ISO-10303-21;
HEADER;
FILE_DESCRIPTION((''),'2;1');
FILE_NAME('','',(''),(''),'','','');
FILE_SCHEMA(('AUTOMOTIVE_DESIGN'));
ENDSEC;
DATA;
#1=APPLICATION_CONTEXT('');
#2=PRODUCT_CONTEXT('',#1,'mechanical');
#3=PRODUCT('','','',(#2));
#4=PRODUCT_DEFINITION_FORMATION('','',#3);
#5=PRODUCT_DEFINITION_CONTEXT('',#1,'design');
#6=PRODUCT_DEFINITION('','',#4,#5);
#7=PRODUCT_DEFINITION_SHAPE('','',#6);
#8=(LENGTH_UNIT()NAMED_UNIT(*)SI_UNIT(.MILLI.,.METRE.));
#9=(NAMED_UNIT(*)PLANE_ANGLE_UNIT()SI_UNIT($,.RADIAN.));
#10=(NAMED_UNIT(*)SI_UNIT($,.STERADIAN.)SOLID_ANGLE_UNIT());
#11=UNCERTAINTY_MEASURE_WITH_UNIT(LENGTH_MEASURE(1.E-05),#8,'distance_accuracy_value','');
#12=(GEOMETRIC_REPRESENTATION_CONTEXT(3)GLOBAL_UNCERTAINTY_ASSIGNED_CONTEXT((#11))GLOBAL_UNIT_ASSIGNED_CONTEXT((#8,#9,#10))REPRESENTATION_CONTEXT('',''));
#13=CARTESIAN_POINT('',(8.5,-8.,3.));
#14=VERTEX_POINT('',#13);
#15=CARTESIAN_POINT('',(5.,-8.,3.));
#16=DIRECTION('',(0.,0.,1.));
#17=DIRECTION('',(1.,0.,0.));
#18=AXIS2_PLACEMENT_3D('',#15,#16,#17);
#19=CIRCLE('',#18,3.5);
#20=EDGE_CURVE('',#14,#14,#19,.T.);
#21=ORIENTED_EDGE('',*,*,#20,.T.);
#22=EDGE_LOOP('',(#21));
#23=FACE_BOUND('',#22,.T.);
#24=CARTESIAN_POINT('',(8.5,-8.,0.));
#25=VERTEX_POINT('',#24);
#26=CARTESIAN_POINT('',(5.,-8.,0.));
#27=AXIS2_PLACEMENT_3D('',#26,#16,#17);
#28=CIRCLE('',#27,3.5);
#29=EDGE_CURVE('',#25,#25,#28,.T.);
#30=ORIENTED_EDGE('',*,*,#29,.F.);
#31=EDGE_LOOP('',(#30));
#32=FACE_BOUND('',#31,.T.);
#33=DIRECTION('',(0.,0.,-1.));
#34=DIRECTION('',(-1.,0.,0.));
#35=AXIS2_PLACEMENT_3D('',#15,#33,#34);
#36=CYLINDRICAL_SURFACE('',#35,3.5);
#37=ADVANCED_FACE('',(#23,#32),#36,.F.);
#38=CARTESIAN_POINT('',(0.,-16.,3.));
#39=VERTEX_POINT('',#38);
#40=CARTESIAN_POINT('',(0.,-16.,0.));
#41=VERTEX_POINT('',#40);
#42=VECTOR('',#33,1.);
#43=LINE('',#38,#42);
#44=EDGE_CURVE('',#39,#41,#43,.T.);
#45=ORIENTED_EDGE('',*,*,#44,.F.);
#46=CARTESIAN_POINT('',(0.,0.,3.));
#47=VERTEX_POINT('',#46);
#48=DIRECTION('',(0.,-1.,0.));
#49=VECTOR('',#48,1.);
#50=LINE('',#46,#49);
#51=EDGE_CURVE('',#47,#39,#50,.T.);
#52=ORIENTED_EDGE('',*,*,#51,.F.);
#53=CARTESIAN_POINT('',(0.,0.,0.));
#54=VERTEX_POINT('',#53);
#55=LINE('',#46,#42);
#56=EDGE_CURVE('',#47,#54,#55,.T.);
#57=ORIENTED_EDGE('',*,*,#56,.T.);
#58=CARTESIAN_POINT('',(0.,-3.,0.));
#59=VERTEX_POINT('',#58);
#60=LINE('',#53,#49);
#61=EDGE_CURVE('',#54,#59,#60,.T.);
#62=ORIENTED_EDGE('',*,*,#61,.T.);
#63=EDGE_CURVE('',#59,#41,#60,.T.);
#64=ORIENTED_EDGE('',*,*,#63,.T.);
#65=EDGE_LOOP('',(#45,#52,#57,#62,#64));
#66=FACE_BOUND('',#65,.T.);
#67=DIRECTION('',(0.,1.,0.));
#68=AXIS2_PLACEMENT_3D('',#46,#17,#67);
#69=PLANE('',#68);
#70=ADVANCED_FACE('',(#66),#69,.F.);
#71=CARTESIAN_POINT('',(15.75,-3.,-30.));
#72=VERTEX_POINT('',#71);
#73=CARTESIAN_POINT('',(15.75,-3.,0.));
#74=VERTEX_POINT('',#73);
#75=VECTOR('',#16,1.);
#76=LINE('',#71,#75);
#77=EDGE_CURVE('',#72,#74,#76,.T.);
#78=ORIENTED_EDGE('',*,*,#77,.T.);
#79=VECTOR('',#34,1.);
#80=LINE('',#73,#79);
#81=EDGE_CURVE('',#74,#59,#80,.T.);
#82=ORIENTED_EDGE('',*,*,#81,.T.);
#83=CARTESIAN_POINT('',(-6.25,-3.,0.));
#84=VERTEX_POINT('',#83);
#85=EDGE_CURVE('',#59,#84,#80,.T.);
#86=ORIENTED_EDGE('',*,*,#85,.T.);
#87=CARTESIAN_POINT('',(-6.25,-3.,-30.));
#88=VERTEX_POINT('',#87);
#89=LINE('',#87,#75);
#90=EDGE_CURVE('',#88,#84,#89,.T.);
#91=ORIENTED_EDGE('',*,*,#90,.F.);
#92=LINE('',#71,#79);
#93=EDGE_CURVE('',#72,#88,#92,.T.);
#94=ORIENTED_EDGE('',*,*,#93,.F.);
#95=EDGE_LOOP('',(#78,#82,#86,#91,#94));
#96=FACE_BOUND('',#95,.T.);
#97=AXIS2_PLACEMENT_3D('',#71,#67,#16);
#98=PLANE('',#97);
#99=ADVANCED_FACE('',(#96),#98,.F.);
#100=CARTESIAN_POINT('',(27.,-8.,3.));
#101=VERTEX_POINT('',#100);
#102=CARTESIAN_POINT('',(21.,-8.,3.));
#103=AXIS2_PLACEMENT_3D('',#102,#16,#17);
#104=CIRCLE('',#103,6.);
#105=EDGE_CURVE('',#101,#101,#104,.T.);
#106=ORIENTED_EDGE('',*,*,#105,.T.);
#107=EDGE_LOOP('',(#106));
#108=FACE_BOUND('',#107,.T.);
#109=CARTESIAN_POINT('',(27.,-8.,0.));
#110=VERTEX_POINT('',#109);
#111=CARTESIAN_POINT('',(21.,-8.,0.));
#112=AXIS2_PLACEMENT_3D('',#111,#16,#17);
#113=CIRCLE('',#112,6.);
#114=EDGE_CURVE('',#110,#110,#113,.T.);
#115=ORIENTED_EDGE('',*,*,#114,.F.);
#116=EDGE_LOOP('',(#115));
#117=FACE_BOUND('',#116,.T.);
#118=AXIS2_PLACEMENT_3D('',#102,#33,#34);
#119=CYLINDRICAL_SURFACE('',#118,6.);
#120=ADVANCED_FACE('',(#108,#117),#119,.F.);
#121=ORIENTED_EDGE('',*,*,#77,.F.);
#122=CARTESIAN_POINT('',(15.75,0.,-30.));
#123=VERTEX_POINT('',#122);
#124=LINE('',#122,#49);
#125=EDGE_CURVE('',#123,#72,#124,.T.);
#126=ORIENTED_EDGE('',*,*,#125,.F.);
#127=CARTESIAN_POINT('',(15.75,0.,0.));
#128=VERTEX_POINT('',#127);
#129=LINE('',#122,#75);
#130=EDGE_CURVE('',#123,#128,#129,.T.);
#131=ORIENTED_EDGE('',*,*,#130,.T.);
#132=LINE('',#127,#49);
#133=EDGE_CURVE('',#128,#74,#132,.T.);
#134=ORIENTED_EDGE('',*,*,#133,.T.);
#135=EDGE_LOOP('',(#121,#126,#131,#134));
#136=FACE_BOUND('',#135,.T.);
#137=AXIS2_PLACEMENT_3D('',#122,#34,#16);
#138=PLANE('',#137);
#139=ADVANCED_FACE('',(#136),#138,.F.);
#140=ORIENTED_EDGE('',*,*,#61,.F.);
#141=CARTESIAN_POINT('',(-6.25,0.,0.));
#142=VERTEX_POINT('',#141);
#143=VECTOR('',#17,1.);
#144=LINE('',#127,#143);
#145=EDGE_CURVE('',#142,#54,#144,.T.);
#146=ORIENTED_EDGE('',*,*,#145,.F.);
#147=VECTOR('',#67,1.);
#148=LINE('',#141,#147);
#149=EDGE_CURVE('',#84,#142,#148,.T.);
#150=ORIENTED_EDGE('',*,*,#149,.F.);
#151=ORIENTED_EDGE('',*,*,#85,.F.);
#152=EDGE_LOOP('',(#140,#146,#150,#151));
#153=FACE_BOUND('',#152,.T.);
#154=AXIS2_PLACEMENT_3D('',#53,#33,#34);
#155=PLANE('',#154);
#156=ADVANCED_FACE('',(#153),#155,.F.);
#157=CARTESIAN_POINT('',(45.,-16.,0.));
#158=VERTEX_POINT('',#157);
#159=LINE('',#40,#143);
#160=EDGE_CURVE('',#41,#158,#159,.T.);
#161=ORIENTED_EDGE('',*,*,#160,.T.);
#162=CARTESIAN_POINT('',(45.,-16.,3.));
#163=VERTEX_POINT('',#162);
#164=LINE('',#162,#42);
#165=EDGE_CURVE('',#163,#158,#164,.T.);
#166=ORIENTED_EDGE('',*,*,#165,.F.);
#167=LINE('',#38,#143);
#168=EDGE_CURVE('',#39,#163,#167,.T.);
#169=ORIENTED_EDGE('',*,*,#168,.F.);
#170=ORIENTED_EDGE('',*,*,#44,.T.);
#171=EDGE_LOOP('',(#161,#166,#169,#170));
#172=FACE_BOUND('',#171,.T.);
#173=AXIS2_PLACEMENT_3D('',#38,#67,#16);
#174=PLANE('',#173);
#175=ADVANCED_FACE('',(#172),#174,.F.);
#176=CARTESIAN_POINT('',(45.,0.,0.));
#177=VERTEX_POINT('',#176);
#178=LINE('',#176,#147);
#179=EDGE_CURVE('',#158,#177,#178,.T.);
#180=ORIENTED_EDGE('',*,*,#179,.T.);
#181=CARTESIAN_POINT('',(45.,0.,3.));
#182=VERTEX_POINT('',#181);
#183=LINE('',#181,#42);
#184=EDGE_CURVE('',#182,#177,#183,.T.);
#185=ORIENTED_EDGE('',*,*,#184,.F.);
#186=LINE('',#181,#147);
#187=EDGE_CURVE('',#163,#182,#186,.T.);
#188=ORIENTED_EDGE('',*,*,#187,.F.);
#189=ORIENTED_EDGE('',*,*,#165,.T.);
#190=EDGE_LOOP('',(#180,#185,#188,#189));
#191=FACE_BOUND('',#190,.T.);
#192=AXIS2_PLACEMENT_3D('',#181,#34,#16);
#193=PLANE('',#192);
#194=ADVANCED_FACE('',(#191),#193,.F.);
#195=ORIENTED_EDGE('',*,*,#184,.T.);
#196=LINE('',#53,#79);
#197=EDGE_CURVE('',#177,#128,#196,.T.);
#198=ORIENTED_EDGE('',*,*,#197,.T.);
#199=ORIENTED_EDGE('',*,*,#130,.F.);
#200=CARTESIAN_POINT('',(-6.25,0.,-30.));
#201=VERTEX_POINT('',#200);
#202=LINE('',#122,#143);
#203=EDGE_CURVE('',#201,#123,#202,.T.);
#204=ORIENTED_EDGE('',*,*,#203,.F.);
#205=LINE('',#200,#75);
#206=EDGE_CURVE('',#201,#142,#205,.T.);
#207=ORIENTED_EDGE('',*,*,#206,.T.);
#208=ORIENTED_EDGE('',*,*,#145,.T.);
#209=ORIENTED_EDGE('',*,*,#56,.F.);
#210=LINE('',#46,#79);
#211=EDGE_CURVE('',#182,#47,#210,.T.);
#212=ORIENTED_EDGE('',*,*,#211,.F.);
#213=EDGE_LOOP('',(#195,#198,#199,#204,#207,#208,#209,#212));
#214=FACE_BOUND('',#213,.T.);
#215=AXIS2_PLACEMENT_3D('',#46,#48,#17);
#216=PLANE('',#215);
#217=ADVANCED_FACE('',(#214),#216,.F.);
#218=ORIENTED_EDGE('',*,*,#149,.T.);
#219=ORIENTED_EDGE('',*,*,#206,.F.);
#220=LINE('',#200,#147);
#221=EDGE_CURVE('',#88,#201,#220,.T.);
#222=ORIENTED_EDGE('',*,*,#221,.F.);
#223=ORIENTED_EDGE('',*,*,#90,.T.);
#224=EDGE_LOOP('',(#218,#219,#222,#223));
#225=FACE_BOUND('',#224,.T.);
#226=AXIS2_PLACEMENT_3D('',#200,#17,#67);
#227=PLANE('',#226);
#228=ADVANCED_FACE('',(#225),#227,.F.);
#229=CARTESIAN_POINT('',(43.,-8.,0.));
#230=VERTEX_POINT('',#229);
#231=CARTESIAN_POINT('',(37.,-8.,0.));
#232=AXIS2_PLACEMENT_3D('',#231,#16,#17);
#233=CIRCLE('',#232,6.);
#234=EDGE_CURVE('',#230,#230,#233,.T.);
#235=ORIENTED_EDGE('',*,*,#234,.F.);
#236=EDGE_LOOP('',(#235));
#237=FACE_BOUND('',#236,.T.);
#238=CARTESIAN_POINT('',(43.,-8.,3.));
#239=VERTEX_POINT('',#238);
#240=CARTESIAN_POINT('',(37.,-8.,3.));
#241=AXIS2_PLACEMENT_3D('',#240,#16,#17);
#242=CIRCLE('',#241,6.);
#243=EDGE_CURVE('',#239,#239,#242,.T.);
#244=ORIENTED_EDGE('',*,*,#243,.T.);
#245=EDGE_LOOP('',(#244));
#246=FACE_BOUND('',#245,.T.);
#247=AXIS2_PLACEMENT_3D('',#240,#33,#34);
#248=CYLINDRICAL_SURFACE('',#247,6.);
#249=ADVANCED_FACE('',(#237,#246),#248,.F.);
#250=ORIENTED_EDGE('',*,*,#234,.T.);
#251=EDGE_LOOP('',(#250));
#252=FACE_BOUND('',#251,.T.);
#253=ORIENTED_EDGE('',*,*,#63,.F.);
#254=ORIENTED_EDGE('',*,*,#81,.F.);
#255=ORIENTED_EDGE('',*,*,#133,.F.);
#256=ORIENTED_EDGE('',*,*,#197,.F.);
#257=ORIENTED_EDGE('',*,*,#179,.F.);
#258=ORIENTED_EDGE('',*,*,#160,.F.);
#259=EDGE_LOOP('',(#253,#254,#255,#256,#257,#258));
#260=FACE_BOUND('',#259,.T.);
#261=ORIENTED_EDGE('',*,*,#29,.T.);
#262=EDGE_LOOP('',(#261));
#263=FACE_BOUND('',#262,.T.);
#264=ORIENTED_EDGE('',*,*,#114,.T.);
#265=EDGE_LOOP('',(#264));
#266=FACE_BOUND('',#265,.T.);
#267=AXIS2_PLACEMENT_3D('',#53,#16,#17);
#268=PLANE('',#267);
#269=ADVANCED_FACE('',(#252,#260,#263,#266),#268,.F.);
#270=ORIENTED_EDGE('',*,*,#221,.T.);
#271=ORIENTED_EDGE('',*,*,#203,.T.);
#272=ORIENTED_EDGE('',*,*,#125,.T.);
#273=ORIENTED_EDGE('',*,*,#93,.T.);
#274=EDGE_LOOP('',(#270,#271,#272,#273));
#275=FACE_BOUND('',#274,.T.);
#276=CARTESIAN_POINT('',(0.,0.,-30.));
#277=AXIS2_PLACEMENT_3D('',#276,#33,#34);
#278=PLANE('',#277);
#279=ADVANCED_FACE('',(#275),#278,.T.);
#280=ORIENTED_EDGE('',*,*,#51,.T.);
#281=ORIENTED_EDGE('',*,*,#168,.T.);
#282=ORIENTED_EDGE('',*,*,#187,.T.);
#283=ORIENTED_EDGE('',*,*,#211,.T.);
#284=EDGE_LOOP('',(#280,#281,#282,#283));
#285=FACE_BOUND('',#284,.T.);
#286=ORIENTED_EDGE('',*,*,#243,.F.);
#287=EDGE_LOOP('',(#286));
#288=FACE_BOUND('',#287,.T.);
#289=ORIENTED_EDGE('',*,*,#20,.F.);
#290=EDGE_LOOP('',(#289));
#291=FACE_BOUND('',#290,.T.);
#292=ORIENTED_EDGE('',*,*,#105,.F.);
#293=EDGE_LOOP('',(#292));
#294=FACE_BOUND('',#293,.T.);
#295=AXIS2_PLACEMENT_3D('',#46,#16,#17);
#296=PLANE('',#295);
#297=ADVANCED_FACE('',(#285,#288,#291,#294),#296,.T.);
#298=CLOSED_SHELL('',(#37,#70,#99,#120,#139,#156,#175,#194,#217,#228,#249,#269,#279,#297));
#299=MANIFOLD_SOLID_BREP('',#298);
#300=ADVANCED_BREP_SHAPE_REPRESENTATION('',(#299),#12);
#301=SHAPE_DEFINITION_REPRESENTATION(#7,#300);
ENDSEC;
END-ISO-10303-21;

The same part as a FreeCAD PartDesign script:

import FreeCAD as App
import Part
import Sketcher

doc = App.newDocument("Part")
body = doc.addObject("PartDesign::Body", "Body")

sketch1 = body.newObject("Sketcher::SketchObject", "Sketch")
sketch1.AttachmentSupport = (doc.getObject("XY_Plane"), [""])
sketch1.MapMode = "FlatFace"
sketch1.addGeometry([
    Part.LineSegment(App.Vector(0, 0, 0), App.Vector(0, -16, 0)),
    Part.LineSegment(App.Vector(0, -16, 0), App.Vector(45, -16, 0)),
    Part.LineSegment(App.Vector(45, -16, 0), App.Vector(45, 0, 0)),
    Part.LineSegment(App.Vector(45, 0, 0), App.Vector(0, 0, 0)),
    Part.Circle(App.Vector(5, -8, 0), App.Vector(0, 0, 1), 3.5),
    Part.Circle(App.Vector(21, -8, 0), App.Vector(0, 0, 1), 6),
    Part.Circle(App.Vector(37, -8, 0), App.Vector(0, 0, 1), 6),
], False)
sketch1.addConstraint([
    Sketcher.Constraint("Coincident", 0, 2, 1, 1),
    Sketcher.Constraint("Coincident", 1, 2, 2, 1),
    Sketcher.Constraint("Coincident", 2, 2, 3, 1),
    Sketcher.Constraint("Coincident", 3, 2, 0, 1),
    Sketcher.Constraint("Vertical", 0),
    Sketcher.Constraint("Horizontal", 1),
    Sketcher.Constraint("Vertical", 2),
    Sketcher.Constraint("Horizontal", 3),
    Sketcher.Constraint("Coincident", 3, 2, -1, 1),
    Sketcher.Constraint("Equal", 5, 6),
    Sketcher.Constraint("Horizontal", 4, 3, 5, 3),
    Sketcher.Constraint("Horizontal", 5, 3, 6, 3),
    Sketcher.Constraint("Diameter", 4, 7.0),
    Sketcher.Constraint("Diameter", 5, 12.0),
    Sketcher.Constraint("DistanceX", 1, 1, 1, 2, 45.0),
    Sketcher.Constraint("DistanceY", 0, 2, 0, 1, 16.0),
    Sketcher.Constraint("DistanceX", -1, 1, 4, 3, 5.0),
    Sketcher.Constraint("DistanceY", 4, 3, -1, 1, 8.0),
    Sketcher.Constraint("DistanceX", -1, 1, 5, 3, 21.0),
    Sketcher.Constraint("DistanceX", -1, 1, 6, 3, 37.0),
])
pad1 = body.newObject("PartDesign::Pad", "Pad")
pad1.Profile = sketch1
pad1.Length = 3

sketch2 = body.newObject("Sketcher::SketchObject", "Sketch001")
sketch2.AttachmentSupport = (doc.getObject("XY_Plane"), [""])
sketch2.MapMode = "FlatFace"
sketch2.addGeometry([
    Part.LineSegment(App.Vector(15.8, 0, 0), App.Vector(15.8, -3, 0)),
    Part.LineSegment(App.Vector(15.8, -3, 0), App.Vector(-6.2, -3, 0)),
    Part.LineSegment(App.Vector(-6.2, -3, 0), App.Vector(-6.2, 0, 0)),
    Part.LineSegment(App.Vector(-6.2, 0, 0), App.Vector(15.8, 0, 0)),
], False)
sketch2.addConstraint([
    Sketcher.Constraint("Coincident", 0, 2, 1, 1),
    Sketcher.Constraint("Coincident", 1, 2, 2, 1),
    Sketcher.Constraint("Coincident", 2, 2, 3, 1),
    Sketcher.Constraint("Coincident", 3, 2, 0, 1),
    Sketcher.Constraint("Vertical", 0),
    Sketcher.Constraint("Horizontal", 1),
    Sketcher.Constraint("Vertical", 2),
    Sketcher.Constraint("Horizontal", 3),
    Sketcher.Constraint("PointOnObject", 2, 2, -1),
    Sketcher.Constraint("DistanceX", 1, 2, 1, 1, 22.0),
    Sketcher.Constraint("DistanceY", 0, 2, 0, 1, 3.0),
    Sketcher.Constraint("DistanceX", -1, 1, 0, 2, 15.75),
])
pad2 = body.newObject("PartDesign::Pad", "Pad001")
pad2.Profile = sketch2
pad2.Length = 30
pad2.Reversed = True

doc.recompute()
